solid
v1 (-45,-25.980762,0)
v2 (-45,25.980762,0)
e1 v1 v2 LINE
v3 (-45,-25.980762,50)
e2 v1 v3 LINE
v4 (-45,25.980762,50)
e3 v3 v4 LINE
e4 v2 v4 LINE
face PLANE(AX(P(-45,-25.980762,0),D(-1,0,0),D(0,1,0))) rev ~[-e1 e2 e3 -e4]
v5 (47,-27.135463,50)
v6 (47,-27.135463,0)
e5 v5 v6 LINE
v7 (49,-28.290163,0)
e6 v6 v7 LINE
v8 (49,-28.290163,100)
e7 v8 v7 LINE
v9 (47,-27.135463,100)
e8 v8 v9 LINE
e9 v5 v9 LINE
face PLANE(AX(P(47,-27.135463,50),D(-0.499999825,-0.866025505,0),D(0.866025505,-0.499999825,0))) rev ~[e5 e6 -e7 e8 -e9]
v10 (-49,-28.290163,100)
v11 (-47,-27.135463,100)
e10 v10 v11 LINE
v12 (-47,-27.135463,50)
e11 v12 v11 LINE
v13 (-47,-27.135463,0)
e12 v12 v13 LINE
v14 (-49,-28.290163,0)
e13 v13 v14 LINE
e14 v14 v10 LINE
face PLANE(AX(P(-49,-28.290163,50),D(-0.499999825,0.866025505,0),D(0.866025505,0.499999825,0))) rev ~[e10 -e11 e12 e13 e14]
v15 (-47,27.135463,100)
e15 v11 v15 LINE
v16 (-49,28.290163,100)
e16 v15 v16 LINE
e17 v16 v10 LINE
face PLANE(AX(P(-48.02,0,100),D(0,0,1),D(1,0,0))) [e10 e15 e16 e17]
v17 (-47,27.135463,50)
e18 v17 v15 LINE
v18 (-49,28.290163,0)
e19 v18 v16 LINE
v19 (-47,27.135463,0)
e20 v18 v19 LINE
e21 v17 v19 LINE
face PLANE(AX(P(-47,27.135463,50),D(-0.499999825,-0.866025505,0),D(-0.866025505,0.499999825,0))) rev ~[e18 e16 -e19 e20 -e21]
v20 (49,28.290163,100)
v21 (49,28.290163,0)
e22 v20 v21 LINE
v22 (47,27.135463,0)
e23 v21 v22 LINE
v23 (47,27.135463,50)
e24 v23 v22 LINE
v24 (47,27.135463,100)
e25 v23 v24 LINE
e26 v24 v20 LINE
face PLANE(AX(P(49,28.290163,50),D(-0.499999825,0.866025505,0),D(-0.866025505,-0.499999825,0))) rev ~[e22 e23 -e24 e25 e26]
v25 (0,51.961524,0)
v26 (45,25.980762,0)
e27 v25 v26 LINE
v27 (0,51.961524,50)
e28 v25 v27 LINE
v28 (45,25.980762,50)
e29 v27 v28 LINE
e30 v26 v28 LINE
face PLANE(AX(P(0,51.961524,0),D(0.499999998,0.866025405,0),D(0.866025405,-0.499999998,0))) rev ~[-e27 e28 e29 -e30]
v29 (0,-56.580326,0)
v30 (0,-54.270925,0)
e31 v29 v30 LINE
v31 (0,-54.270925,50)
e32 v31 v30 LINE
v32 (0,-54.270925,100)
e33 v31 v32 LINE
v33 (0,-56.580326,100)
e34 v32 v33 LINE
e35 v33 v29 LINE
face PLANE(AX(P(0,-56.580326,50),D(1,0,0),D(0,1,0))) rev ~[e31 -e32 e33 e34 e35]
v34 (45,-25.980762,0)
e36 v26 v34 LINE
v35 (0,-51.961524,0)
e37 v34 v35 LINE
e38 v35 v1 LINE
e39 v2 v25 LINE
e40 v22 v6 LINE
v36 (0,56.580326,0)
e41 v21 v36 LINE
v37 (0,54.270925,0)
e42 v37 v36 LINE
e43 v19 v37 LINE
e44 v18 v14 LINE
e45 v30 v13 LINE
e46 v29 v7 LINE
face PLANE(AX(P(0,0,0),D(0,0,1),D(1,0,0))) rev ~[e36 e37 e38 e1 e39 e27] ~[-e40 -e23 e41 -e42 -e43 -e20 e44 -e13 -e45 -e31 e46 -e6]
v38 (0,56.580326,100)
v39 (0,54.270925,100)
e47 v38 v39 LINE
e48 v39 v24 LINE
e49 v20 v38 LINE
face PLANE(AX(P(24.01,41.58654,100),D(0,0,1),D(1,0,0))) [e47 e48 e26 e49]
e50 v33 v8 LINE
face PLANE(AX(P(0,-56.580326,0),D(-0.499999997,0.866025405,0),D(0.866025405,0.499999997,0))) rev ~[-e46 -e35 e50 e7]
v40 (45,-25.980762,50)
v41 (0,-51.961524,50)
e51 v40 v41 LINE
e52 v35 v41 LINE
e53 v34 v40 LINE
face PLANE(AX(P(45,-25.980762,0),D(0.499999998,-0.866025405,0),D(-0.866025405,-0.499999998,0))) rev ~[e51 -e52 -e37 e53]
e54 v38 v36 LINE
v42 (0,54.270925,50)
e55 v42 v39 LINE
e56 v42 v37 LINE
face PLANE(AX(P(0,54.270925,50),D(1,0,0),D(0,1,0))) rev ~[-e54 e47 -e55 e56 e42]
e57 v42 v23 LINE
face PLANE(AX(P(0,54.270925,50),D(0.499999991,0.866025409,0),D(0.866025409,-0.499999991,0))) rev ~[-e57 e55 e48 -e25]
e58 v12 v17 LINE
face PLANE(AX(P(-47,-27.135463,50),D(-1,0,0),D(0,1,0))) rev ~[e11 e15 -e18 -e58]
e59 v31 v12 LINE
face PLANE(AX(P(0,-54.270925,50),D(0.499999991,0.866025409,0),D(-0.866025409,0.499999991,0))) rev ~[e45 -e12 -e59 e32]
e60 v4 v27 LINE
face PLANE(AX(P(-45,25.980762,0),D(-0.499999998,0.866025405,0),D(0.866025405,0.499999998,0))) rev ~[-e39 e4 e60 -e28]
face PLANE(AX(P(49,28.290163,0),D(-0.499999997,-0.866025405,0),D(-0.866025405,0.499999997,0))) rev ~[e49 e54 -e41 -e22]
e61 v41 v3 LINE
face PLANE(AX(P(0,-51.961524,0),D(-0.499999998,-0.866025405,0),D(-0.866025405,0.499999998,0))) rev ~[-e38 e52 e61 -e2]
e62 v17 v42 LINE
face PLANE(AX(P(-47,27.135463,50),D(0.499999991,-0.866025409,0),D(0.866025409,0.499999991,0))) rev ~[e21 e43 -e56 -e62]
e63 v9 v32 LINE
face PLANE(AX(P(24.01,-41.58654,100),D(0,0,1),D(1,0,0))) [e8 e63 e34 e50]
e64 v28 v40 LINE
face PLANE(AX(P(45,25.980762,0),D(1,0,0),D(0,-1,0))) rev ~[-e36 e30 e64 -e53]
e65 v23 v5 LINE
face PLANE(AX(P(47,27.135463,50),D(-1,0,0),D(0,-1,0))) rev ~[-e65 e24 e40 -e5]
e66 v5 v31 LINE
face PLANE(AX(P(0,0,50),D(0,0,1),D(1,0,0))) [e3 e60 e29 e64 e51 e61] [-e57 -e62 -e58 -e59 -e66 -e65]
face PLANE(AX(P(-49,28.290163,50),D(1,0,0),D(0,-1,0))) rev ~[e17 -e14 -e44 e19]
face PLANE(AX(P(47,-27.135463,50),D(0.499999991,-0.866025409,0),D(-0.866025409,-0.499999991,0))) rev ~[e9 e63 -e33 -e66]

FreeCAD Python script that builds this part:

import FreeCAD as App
import Part
import Sketcher
from FreeCAD import Vector
Q = App.Units.Quantity

doc = App.newDocument("Part")
body = doc.addObject("PartDesign::Body", "Body")

# Sketch on XY plane
sketch1 = doc.addObject("Sketcher::SketchObject", "Sketch")
body.addObject(sketch1)
sketch1.AttachmentSupport = (doc.XY_Plane, [""])
sketch1.MapMode = "FlatFace"
sketch1.addGeometry([
    Part.LineSegment(Vector(-49, 28, 0), Vector(-49, -28, 0)),  # 0
    Part.LineSegment(Vector(-49, -28, 0), Vector(0, -57, 0)),  # 1
    Part.LineSegment(Vector(0, -57, 0), Vector(49, -28, 0)),  # 2
    Part.LineSegment(Vector(49, -28, 0), Vector(49, 28, 0)),  # 3
    Part.LineSegment(Vector(49, 28, 0), Vector(0, 57, 0)),  # 4
    Part.LineSegment(Vector(0, 57, 0), Vector(-49, 28, 0)),  # 5
    Part.LineSegment(Vector(45, -26, 0), Vector(0, -52, 0)),  # 6
    Part.LineSegment(Vector(0, -52, 0), Vector(-45, -26, 0)),  # 7
    Part.LineSegment(Vector(-45, -26, 0), Vector(-45, 26, 0)),  # 8
    Part.LineSegment(Vector(-45, 26, 0), Vector(0, 52, 0)),  # 9
    Part.LineSegment(Vector(0, 52, 0), Vector(45, 26, 0)),  # 10
    Part.LineSegment(Vector(45, 26, 0), Vector(45, -26, 0)),  # 11
], False)
sketch1.addConstraint([
    Sketcher.Constraint("Coincident", 0, 2, 1, 1),
    Sketcher.Constraint("Coincident", 1, 2, 2, 1),
    Sketcher.Constraint("Coincident", 2, 2, 3, 1),
    Sketcher.Constraint("Coincident", 3, 2, 4, 1),
    Sketcher.Constraint("Coincident", 4, 2, 5, 1),
    Sketcher.Constraint("Coincident", 5, 2, 0, 1),
    Sketcher.Constraint("Coincident", 6, 2, 7, 1),
    Sketcher.Constraint("Coincident", 7, 2, 8, 1),
    Sketcher.Constraint("Coincident", 8, 2, 9, 1),
    Sketcher.Constraint("Coincident", 9, 2, 10, 1),
    Sketcher.Constraint("Coincident", 10, 2, 11, 1),
    Sketcher.Constraint("Coincident", 11, 2, 6, 1),
    Sketcher.Constraint("Vertical", 0),
    Sketcher.Constraint("Vertical", 3),
    Sketcher.Constraint("Vertical", 8),
    Sketcher.Constraint("Vertical", 11),
    Sketcher.Constraint("Symmetric", 0, 2, 3, 2, -1, 1),
    Sketcher.Constraint("Symmetric", 1, 2, 4, 2, -1, 1),
    Sketcher.Constraint("Symmetric", 6, 2, 9, 2, -1, 1),
    Sketcher.Constraint("Symmetric", 7, 2, 10, 2, -1, 1),
    Sketcher.Constraint("PointOnObject", 1, 2, -2),
    Sketcher.Constraint("PointOnObject", 6, 2, -2),
    Sketcher.Constraint("Parallel", 2, 5),
    Sketcher.Constraint("Parallel", 5, 6),
    Sketcher.Constraint("Parallel", 4, 7),
    Sketcher.Constraint("Parallel", 6, 9),
    Sketcher.Constraint("Horizontal", 0, 2, 2, 2),
    Sketcher.Constraint("Angle", 1, Q("-30 deg")),
    Sketcher.Constraint("DistanceX", 0, 2, -1, 1, Q("49 mm")),
    Sketcher.Constraint("DistanceX", 7, 2, -1, 1, Q("45 mm")),
    Sketcher.Constraint("DistanceY", 0, 2, 7, 2, Q("2.309401 mm")),
    Sketcher.Constraint("DistanceY", 0, 2, 0, 1, Q("56.580326 mm")),
])
pad1 = doc.addObject("PartDesign::Pad", "Pad")
body.addObject(pad1)
pad1.Profile = sketch1
pad1.Length = 50

# Sketch on XY plane
sketch2 = doc.addObject("Sketcher::SketchObject", "Sketch001")
body.addObject(sketch2)
sketch2.AttachmentSupport = (doc.XY_Plane, [""])
sketch2.MapMode = "FlatFace"
sketch2.AttachmentOffset = App.Placement(Vector(0, 0, 50), App.Rotation())
sketch2.addGeometry([
    Part.LineSegment(Vector(0, 56.6, 0), Vector(-49, 28.3, 0)),  # 0
    Part.LineSegment(Vector(-49, 28.3, 0), Vector(-47, 27.1, 0)),  # 1
    Part.LineSegment(Vector(-47, 27.1, 0), Vector(0, 54.3, 0)),  # 2
    Part.LineSegment(Vector(0, 54.3, 0), Vector(0, 56.6, 0)),  # 3
    Part.LineSegment(Vector(49, -28.3, 0), Vector(49, 28.3, 0)),  # 4
    Part.LineSegment(Vector(49, 28.3, 0), Vector(47, 27.1, 0)),  # 5
    Part.LineSegment(Vector(47, 27.1, 0), Vector(47, -27.1, 0)),  # 6
    Part.LineSegment(Vector(47, -27.1, 0), Vector(49, -28.3, 0)),  # 7
    Part.LineSegment(Vector(-47, -27.1, 0), Vector(-49, -28.3, 0)),  # 8
    Part.LineSegment(Vector(-49, -28.3, 0), Vector(0, -56.6, 0)),  # 9
    Part.LineSegment(Vector(0, -56.6, 0), Vector(0, -54.3, 0)),  # 10
    Part.LineSegment(Vector(0, -54.3, 0), Vector(-47, -27.1, 0)),  # 11
], False)
sketch2.addConstraint([
    Sketcher.Constraint("Coincident", 0, 2, 1, 1),
    Sketcher.Constraint("Coincident", 1, 2, 2, 1),
    Sketcher.Constraint("Coincident", 2, 2, 3, 1),
    Sketcher.Constraint("Coincident", 3, 2, 0, 1),
    Sketcher.Constraint("Coincident", 4, 2, 5, 1),
    Sketcher.Constraint("Coincident", 5, 2, 6, 1),
    Sketcher.Constraint("Coincident", 6, 2, 7, 1),
    Sketcher.Constraint("Coincident", 7, 2, 4, 1),
    Sketcher.Constraint("Coincident", 8, 2, 9, 1),
    Sketcher.Constraint("Coincident", 9, 2, 10, 1),
    Sketcher.Constraint("Coincident", 10, 2, 11, 1),
    Sketcher.Constraint("Coincident", 11, 2, 8, 1),
    Sketcher.Constraint("Vertical", 3),
    Sketcher.Constraint("Vertical", 4),
    Sketcher.Constraint("Vertical", 6),
    Sketcher.Constraint("Vertical", 10),
    Sketcher.Constraint("Symmetric", 1, 2, 6, 2, -1, 1),
    Sketcher.Constraint("Symmetric", 0, 2, 7, 2, -1, 1),
    Sketcher.Constraint("Symmetric", 4, 2, 8, 2, -1, 1),
    Sketcher.Constraint("Symmetric", 3, 2, 9, 2, -1, 1),
    Sketcher.Constraint("Symmetric", 5, 2, 11, 2, -1, 1),
    Sketcher.Constraint("Symmetric", 2, 2, 10, 2, -1),
    Sketcher.Constraint("Parallel", 0, 2),
    Sketcher.Constraint("Parallel", 2, 5),
    Sketcher.Constraint("Parallel", 7, 9),
    Sketcher.Constraint("Horizontal", 0, 2, 4, 2),
    Sketcher.Constraint("Angle", 0, Q("-150 deg")),
    Sketcher.Constraint("DistanceX", 0, 2, -1, 1, Q("49 mm")),
    Sketcher.Constraint("DistanceX", 1, 2, -1, 1, Q("47 mm")),
    Sketcher.Constraint("DistanceY", 4, 1, 4, 2, Q("56.580326 mm")),
])
pocket1 = doc.addObject("PartDesign::Pocket", "Pocket")
body.addObject(pocket1)
pocket1.Profile = sketch2
pocket1.Type = "ThroughAll"

# Sketch on XY plane
sketch3 = doc.addObject("Sketcher::SketchObject", "Sketch002")
body.addObject(sketch3)
sketch3.AttachmentSupport = (doc.XY_Plane, [""])
sketch3.MapMode = "FlatFace"
sketch3.AttachmentOffset = App.Placement(Vector(0, 0, 50), App.Rotation())
sketch3.addGeometry([
    Part.LineSegment(Vector(-47, 27.1, 0), Vector(-49, 28.3, 0)),  # 0
    Part.LineSegment(Vector(-49, 28.3, 0), Vector(-49, -28.3, 0)),  # 1
    Part.LineSegment(Vector(-49, -28.3, 0), Vector(-47, -27.1, 0)),  # 2
    Part.LineSegment(Vector(-47, -27.1, 0), Vector(-47, 27.1, 0)),  # 3
    Part.LineSegment(Vector(49, 28.3, 0), Vector(0, 56.6, 0)),  # 4
    Part.LineSegment(Vector(0, 56.6, 0), Vector(0, 54.3, 0)),  # 5
    Part.LineSegment(Vector(0, 54.3, 0), Vector(47, 27.1, 0)),  # 6
    Part.LineSegment(Vector(47, 27.1, 0), Vector(49, 28.3, 0)),  # 7
    Part.LineSegment(Vector(0, -54.3, 0), Vector(0, -56.6, 0)),  # 8
    Part.LineSegment(Vector(0, -56.6, 0), Vector(49, -28.3, 0)),  # 9
    Part.LineSegment(Vector(49, -28.3, 0), Vector(47, -27.1, 0)),  # 10
    Part.LineSegment(Vector(47, -27.1, 0), Vector(0, -54.3, 0)),  # 11
], False)
sketch3.addConstraint([
    Sketcher.Constraint("Coincident", 0, 2, 1, 1),
    Sketcher.Constraint("Coincident", 1, 2, 2, 1),
    Sketcher.Constraint("Coincident", 2, 2, 3, 1),
    Sketcher.Constraint("Coincident", 3, 2, 0, 1),
    Sketcher.Constraint("Coincident", 4, 2, 5, 1),
    Sketcher.Constraint("Coincident", 5, 2, 6, 1),
    Sketcher.Constraint("Coincident", 6, 2, 7, 1),
    Sketcher.Constraint("Coincident", 7, 2, 4, 1),
    Sketcher.Constraint("Coincident", 8, 2, 9, 1),
    Sketcher.Constraint("Coincident", 9, 2, 10, 1),
    Sketcher.Constraint("Coincident", 10, 2, 11, 1),
    Sketcher.Constraint("Coincident", 11, 2, 8, 1),
    Sketcher.Constraint("Vertical", 1),
    Sketcher.Constraint("Vertical", 3),
    Sketcher.Constraint("Vertical", 5),
    Sketcher.Constraint("Vertical", 8),
    Sketcher.Constraint("Symmetric", 2, 2, 6, 2, -1, 1),
    Sketcher.Constraint("Symmetric", 1, 2, 7, 2, -1, 1),
    Sketcher.Constraint("Symmetric", 4, 2, 8, 2, -1, 1),
    Sketcher.Constraint("Symmetric", 0, 2, 9, 2, -1, 1),
    Sketcher.Constraint("Symmetric", 3, 2, 10, 2, -1, 1),
    Sketcher.Constraint("Symmetric", 5, 2, 11, 2, -1),
    Sketcher.Constraint("Parallel", 0, 4),
    Sketcher.Constraint("Parallel", 4, 6),
    Sketcher.Constraint("Parallel", 7, 9),
    Sketcher.Constraint("Horizontal", 3, 2, 6, 2),
    Sketcher.Constraint("Angle", 0, Q("150.000012 deg")),
    Sketcher.Constraint("DistanceX", 0, 2, -1, 1, Q("49 mm")),
    Sketcher.Constraint("DistanceX", 2, 2, -1, 1, Q("47 mm")),
    Sketcher.Constraint("DistanceY", 1, 2, 1, 1, Q("56.580326 mm")),
])
pad2 = doc.addObject("PartDesign::Pad", "Pad001")
body.addObject(pad2)
pad2.Profile = sketch3
pad2.Length = 50

doc.recompute()
